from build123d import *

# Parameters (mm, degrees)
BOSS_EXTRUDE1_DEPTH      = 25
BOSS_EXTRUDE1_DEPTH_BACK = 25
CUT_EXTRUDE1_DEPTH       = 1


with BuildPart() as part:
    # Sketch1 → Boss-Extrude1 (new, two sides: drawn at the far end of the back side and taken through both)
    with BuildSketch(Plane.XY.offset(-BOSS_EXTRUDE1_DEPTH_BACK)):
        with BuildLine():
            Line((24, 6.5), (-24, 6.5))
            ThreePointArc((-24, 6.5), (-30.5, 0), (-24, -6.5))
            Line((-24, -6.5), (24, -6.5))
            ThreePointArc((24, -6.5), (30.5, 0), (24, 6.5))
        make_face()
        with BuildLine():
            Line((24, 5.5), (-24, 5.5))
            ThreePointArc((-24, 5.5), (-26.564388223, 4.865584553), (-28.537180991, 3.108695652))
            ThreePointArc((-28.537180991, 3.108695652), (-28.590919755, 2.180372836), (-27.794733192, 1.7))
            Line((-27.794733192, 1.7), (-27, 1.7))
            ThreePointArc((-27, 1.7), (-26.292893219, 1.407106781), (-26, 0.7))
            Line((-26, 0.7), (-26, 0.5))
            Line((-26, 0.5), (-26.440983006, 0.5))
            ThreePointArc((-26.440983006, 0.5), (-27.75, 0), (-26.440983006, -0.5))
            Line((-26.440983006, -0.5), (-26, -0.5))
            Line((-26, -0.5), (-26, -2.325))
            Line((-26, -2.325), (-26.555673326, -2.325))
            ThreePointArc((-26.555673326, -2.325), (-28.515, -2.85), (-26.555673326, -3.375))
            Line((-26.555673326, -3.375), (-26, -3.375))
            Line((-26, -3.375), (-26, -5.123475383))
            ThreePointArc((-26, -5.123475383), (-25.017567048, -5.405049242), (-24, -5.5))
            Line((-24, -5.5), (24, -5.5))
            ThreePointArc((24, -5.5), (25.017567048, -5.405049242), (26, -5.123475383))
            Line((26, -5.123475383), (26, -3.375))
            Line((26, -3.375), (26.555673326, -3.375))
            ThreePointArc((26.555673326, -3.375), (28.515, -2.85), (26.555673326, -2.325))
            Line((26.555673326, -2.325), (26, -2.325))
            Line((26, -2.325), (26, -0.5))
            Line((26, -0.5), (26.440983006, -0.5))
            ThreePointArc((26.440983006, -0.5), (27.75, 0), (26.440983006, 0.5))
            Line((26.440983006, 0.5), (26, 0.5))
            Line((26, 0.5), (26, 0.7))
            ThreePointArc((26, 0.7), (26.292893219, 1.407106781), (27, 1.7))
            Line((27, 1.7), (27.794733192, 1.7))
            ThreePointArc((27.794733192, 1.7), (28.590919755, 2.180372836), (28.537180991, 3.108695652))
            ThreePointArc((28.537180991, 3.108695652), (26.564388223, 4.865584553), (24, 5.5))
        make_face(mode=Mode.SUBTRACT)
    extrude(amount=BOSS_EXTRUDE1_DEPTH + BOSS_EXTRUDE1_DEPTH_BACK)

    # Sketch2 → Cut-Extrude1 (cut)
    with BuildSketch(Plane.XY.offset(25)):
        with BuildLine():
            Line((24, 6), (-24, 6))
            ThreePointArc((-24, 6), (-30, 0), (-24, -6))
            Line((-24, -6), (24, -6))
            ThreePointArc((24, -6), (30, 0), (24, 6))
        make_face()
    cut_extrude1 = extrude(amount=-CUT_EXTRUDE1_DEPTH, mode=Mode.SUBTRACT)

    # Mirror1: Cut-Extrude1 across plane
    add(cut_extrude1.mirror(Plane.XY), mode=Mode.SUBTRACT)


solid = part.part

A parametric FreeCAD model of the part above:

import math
import FreeCAD as App
import Part
import Sketcher

V = App.Vector

doc = App.newDocument("Part")
body = doc.addObject("PartDesign::Body", "Body")

sketch1 = doc.addObject("Sketcher::SketchObject", "Sketch")
body.addObject(sketch1)
sketch1.AttachmentSupport = (doc.XY_Plane, [""])
sketch1.MapMode = "FlatFace"
sketch1.addGeometry([
    Part.LineSegment(V(24, 6.5, 0), V(-24, 6.5, 0)),
    Part.ArcOfCircle(Part.Circle(V(-24, 0, 0), V(0, 0, 1), 6.5), math.radians(90), math.radians(270)),
    Part.LineSegment(V(-24, -6.5, 0), V(24, -6.5, 0)),
    Part.ArcOfCircle(Part.Circle(V(24, 0, 0), V(0, 0, 1), 6.5), math.radians(-90), math.radians(90)),
    Part.LineSegment(V(-24, 5.5, 0), V(24, 5.5, 0)),
    Part.ArcOfCircle(Part.Circle(V(24, 0, 0), V(0, 0, 1), 5.5), math.radians(34.417389), math.radians(90)),
    Part.ArcOfCircle(Part.Circle(V(27.794733, 2.6, 0), V(0, 0, 1), 0.9), math.radians(-90), math.radians(34.417389)),
    Part.LineSegment(V(27.794733, 1.7, 0), V(27, 1.7, 0)),
    Part.ArcOfCircle(Part.Circle(V(27, 0.7, 0), V(0, 0, 1), 1), math.radians(90), math.radians(180)),
    Part.LineSegment(V(26, 0.7, 0), V(26, 0.5, 0)),
    Part.LineSegment(V(26, 0.5, 0), V(26.440983, 0.5, 0)),
    Part.ArcOfCircle(Part.Circle(V(27, 0, 0), V(0, 0, 1), 0.75), math.radians(-138.189685), math.radians(138.189685)),
    Part.LineSegment(V(26.440983, -0.5, 0), V(26, -0.5, 0)),
    Part.LineSegment(V(26, -0.5, 0), V(26, -2.325, 0)),
    Part.LineSegment(V(26, -2.325, 0), V(26.555673, -2.325, 0)),
    Part.ArcOfCircle(Part.Circle(V(27.465, -2.85, 0), V(0, 0, 1), 1.05), math.radians(-150), math.radians(150)),
    Part.LineSegment(V(26.555673, -3.375, 0), V(26, -3.375, 0)),
    Part.LineSegment(V(26, -3.375, 0), V(26, -5.123475, 0)),
    Part.ArcOfCircle(Part.Circle(V(24, 0, 0), V(0, 0, 1), 5.5), math.radians(-90), math.radians(-68.676314)),
    Part.LineSegment(V(24, -5.5, 0), V(-24, -5.5, 0)),
    Part.ArcOfCircle(Part.Circle(V(-24, 0, 0), V(0, 0, 1), 5.5), math.radians(-111.323686), math.radians(-90)),
    Part.LineSegment(V(-26, -5.123475, 0), V(-26, -3.375, 0)),
    Part.LineSegment(V(-26, -3.375, 0), V(-26.555673, -3.375, 0)),
    Part.ArcOfCircle(Part.Circle(V(-27.465, -2.85, 0), V(0, 0, 1), 1.05), math.radians(30), math.radians(330)),
    Part.LineSegment(V(-26.555673, -2.325, 0), V(-26, -2.325, 0)),
    Part.LineSegment(V(-26, -2.325, 0), V(-26, -0.5, 0)),
    Part.LineSegment(V(-26, -0.5, 0), V(-26.440983, -0.5, 0)),
    Part.ArcOfCircle(Part.Circle(V(-27, 0, 0), V(0, 0, 1), 0.75), math.radians(41.810315), math.radians(318.189685)),
    Part.LineSegment(V(-26.440983, 0.5, 0), V(-26, 0.5, 0)),
    Part.LineSegment(V(-26, 0.5, 0), V(-26, 0.7, 0)),
    Part.ArcOfCircle(Part.Circle(V(-27, 0.7, 0), V(0, 0, 1), 1), math.radians(0), math.radians(90)),
    Part.LineSegment(V(-27, 1.7, 0), V(-27.794733, 1.7, 0)),
    Part.ArcOfCircle(Part.Circle(V(-27.794733, 2.6, 0), V(0, 0, 1), 0.9), math.radians(145.582611), math.radians(270)),
    Part.ArcOfCircle(Part.Circle(V(-24, 0, 0), V(0, 0, 1), 5.5), math.radians(90), math.radians(145.582611)),
], False)
sketch1.addConstraint([
    Sketcher.Constraint("Tangent", 0, 2, 1, 1),
    Sketcher.Constraint("Tangent", 1, 2, 2, 1),
    Sketcher.Constraint("Tangent", 2, 2, 3, 1),
    Sketcher.Constraint("Tangent", 3, 2, 0, 1),
    Sketcher.Constraint("Tangent", 4, 2, 5, 2),
    Sketcher.Constraint("Tangent", 5, 1, 6, 2),
    Sketcher.Constraint("Tangent", 6, 1, 7, 1),
    Sketcher.Constraint("Tangent", 7, 2, 8, 1),
    Sketcher.Constraint("Tangent", 8, 2, 9, 1),
    Sketcher.Constraint("Coincident", 9, 2, 10, 1),
    Sketcher.Constraint("Coincident", 10, 2, 11, 2),
    Sketcher.Constraint("Coincident", 11, 1, 12, 1),
    Sketcher.Constraint("Coincident", 12, 2, 13, 1),
    Sketcher.Constraint("Coincident", 13, 2, 14, 1),
    Sketcher.Constraint("Coincident", 14, 2, 15, 2),
    Sketcher.Constraint("Coincident", 15, 1, 16, 1),
    Sketcher.Constraint("Coincident", 16, 2, 17, 1),
    Sketcher.Constraint("Coincident", 17, 2, 18, 2),
    Sketcher.Constraint("Tangent", 18, 1, 19, 1),
    Sketcher.Constraint("Tangent", 19, 2, 20, 2),
    Sketcher.Constraint("Coincident", 20, 1, 21, 1),
    Sketcher.Constraint("Coincident", 21, 2, 22, 1),
    Sketcher.Constraint("Coincident", 22, 2, 23, 2),
    Sketcher.Constraint("Coincident", 23, 1, 24, 1),
    Sketcher.Constraint("Coincident", 24, 2, 25, 1),
    Sketcher.Constraint("Coincident", 25, 2, 26, 1),
    Sketcher.Constraint("Coincident", 26, 2, 27, 2),
    Sketcher.Constraint("Coincident", 27, 1, 28, 1),
    Sketcher.Constraint("Coincident", 28, 2, 29, 1),
    Sketcher.Constraint("Tangent", 29, 2, 30, 1),
    Sketcher.Constraint("Tangent", 30, 2, 31, 1),
    Sketcher.Constraint("Tangent", 31, 2, 32, 2),
    Sketcher.Constraint("Tangent", 32, 1, 33, 2),
    Sketcher.Constraint("Tangent", 33, 1, 4, 1),
    Sketcher.Constraint("Horizontal", 0),
    Sketcher.Constraint("Horizontal", 2),
    Sketcher.Constraint("Horizontal", 4),
    Sketcher.Constraint("Horizontal", 7),
    Sketcher.Constraint("Vertical", 9),
    Sketcher.Constraint("Horizontal", 10),
    Sketcher.Constraint("Horizontal", 12),
    Sketcher.Constraint("Vertical", 13),
    Sketcher.Constraint("Horizontal", 14),
    Sketcher.Constraint("Horizontal", 16),
    Sketcher.Constraint("Vertical", 17),
    Sketcher.Constraint("Horizontal", 19),
    Sketcher.Constraint("Vertical", 21),
    Sketcher.Constraint("Horizontal", 22),
    Sketcher.Constraint("Horizontal", 24),
    Sketcher.Constraint("Vertical", 25),
    Sketcher.Constraint("Horizontal", 26),
    Sketcher.Constraint("Horizontal", 28),
    Sketcher.Constraint("Vertical", 29),
    Sketcher.Constraint("Horizontal", 31),
    Sketcher.Constraint("Coincident", 5, 3, 3, 3),
    Sketcher.Constraint("Coincident", 18, 3, 3, 3),
    Sketcher.Constraint("Coincident", 20, 3, 1, 3),
    Sketcher.Constraint("Coincident", 33, 3, 1, 3),
    Sketcher.Constraint("Equal", 5, 18),
    Sketcher.Constraint("Equal", 15, 23),
    Sketcher.Constraint("Equal", 11, 27),
    Sketcher.Constraint("Equal", 8, 30),
    Sketcher.Constraint("Equal", 6, 32),
    Sketcher.Constraint("Symmetric", 1, 3, 3, 3, -1, 1),
    Sketcher.Constraint("Symmetric", 11, 3, 27, 3, -1, 1),
    Sketcher.Constraint("Symmetric", 9, 2, 25, 2, -1, 1),
    Sketcher.Constraint("Symmetric", 12, 2, 28, 2, -1, 1),
    Sketcher.Constraint("Symmetric", 15, 3, 23, 3, -2),
    Sketcher.Constraint("Symmetric", 8, 3, 30, 3, -2),
    Sketcher.Constraint("Symmetric", 16, 2, 21, 2, -2),
    Sketcher.Constraint("Symmetric", 11, 1, 26, 2, -2),
    Sketcher.Constraint("Horizontal", 14, 2, 23, 1),
    Sketcher.Constraint("Vertical", 8, 3, 11, 3),
    Sketcher.Constraint("Vertical", 14, 2, 15, 1),
    Sketcher.Constraint("Vertical", 13, 2, 16, 2),
    Sketcher.Constraint("Radius", 8, 1.0),
    Sketcher.Constraint("Radius", 1, 6.5),
    Sketcher.Constraint("Radius", 5, 5.5),
    Sketcher.Constraint("Radius", 6, 0.9),
    Sketcher.Constraint("DistanceX", 0, 2, 0, 1, 48.0),
    Sketcher.Constraint("Radius", 11, 0.75),
    Sketcher.Constraint("Radius", 15, 1.05),
    Sketcher.Constraint("DistanceY", 9, 2, 9, 1, 0.2),
    Sketcher.Constraint("DistanceX", -1, 1, 8, 3, 27.0),
    Sketcher.Constraint("DistanceY", 11, 1, 10, 2, 1.0),
    Sketcher.Constraint("DistanceY", 13, 2, 13, 1, 1.825),
    Sketcher.Constraint("DistanceY", 15, 3, -1, 1, 2.85),
    Sketcher.Constraint("DistanceX", -1, 1, 15, 3, 27.465),
])
pad1 = doc.addObject("PartDesign::Pad", "Pad")
body.addObject(pad1)
pad1.Profile = sketch1
pad1.Type = "TwoLengths"
pad1.Length = 25
pad1.Length2 = 25

sketch2 = doc.addObject("Sketcher::SketchObject", "Sketch001")
body.addObject(sketch2)
sketch2.AttachmentSupport = (doc.XY_Plane, [""])
sketch2.MapMode = "FlatFace"
sketch2.AttachmentOffset = App.Placement(V(0, 0, 25), App.Rotation())
sketch2.addGeometry([
    Part.LineSegment(V(24, 6, 0), V(-24, 6, 0)),
    Part.ArcOfCircle(Part.Circle(V(-24, 0, 0), V(0, 0, 1), 6), math.radians(90), math.radians(270)),
    Part.LineSegment(V(-24, -6, 0), V(24, -6, 0)),
    Part.ArcOfCircle(Part.Circle(V(24, 0, 0), V(0, 0, 1), 6), math.radians(-90), math.radians(90)),
], False)
sketch2.addConstraint([
    Sketcher.Constraint("Tangent", 0, 2, 1, 1),
    Sketcher.Constraint("Tangent", 1, 2, 2, 1),
    Sketcher.Constraint("Tangent", 2, 2, 3, 1),
    Sketcher.Constraint("Tangent", 3, 2, 0, 1),
    Sketcher.Constraint("Horizontal", 0),
    Sketcher.Constraint("Horizontal", 2),
    Sketcher.Constraint("Symmetric", 1, 3, 3, 3, -1, 1),
    Sketcher.Constraint("Radius", 1, 6.0),
    Sketcher.Constraint("DistanceX", 0, 2, 0, 1, 48.0),
])
pocket1 = doc.addObject("PartDesign::Pocket", "Pocket")
body.addObject(pocket1)
pocket1.Profile = sketch2
pocket1.Length = 1
doc.recompute()

mirrored = doc.addObject("PartDesign::Mirrored", "Mirrored")
body.addObject(mirrored)
mirrored.Originals = [pocket1]
mirrored.MirrorPlane = (doc.XY_Plane, [""])
body.Tip = mirrored

doc.recompute()
